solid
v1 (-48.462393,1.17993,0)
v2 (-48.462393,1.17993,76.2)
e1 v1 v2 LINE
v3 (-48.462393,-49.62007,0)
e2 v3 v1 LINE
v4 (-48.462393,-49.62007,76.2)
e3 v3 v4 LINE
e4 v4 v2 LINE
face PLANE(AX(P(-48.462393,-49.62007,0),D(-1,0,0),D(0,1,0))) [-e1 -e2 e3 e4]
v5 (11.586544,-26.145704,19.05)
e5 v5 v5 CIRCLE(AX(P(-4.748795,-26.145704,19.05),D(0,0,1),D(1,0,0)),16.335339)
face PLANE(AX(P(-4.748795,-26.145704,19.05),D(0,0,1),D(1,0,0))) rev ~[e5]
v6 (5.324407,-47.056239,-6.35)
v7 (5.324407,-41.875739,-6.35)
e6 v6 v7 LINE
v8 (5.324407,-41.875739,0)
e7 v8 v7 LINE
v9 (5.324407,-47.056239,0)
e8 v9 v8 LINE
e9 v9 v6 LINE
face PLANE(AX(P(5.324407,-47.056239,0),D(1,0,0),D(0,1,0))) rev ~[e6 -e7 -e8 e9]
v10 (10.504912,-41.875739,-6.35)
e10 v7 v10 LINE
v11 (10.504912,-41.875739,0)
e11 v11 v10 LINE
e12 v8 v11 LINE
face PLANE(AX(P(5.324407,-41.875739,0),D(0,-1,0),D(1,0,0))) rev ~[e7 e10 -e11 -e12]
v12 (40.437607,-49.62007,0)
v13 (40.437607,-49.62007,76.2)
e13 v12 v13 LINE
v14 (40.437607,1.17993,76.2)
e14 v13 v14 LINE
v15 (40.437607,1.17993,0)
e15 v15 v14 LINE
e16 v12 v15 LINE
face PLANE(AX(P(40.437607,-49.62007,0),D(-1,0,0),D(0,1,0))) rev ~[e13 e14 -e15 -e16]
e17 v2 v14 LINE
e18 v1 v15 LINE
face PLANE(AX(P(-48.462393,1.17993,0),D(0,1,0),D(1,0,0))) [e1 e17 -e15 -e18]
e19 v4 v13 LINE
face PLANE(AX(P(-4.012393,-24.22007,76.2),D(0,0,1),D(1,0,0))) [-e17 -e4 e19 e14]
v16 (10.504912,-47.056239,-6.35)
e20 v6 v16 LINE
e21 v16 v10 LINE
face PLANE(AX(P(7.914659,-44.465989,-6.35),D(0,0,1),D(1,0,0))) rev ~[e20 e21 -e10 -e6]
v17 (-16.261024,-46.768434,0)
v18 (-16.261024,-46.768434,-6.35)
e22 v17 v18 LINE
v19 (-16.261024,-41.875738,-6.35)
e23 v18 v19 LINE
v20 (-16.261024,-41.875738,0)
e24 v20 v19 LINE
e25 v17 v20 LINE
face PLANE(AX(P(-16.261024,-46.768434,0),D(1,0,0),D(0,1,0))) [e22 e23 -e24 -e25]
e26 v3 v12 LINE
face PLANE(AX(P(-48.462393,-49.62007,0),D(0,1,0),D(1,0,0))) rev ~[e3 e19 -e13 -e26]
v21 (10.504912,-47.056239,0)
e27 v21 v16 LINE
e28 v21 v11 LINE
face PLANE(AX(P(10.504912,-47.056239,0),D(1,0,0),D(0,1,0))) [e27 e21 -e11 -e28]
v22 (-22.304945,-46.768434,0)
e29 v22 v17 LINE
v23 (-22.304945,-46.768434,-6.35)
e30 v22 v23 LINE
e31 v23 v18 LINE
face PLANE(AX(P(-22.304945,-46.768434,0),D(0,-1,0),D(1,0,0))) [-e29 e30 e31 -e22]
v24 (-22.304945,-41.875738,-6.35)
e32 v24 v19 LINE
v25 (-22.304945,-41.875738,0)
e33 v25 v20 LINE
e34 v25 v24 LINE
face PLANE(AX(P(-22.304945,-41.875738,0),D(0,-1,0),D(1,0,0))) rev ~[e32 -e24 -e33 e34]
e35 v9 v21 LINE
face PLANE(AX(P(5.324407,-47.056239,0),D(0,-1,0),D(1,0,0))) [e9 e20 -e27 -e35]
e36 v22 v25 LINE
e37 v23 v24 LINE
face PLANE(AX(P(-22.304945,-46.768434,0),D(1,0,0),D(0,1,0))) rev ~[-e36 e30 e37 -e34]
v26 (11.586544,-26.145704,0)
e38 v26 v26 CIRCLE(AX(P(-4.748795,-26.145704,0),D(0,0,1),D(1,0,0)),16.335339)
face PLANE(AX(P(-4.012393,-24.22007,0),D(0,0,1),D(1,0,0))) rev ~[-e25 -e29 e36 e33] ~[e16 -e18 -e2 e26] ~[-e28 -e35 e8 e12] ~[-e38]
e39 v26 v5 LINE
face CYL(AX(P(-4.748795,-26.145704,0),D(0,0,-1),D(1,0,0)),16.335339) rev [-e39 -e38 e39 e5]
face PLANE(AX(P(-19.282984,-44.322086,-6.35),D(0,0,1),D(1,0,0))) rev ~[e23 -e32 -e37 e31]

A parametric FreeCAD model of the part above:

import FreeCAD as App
import Part
import Sketcher
Q = App.Units.Quantity

doc = App.newDocument("Part")
params = doc.addObject("Spreadsheet::Sheet", "Params")
for row, (alias, value) in enumerate([
    ("sketch1_height", "2 in"),
    ("sketch1_width", "3.5 in"),
    ("pad1_length", "3 in"),
    ("pocket1_length", "0.75 in"),
    ("pad2_length", "0.5 in"),
    ("pad3_length", "0.25 in"),
], start=1):
    params.set(f"A{row}", alias)
    params.set(f"B{row}", "=" + value)
    params.setAlias(f"B{row}", alias)

body = doc.addObject("PartDesign::Body", "Body")

# Sketch on XY plane
sketch1 = body.newObject("Sketcher::SketchObject", "Sketch")
sketch1.AttachmentSupport = (doc.getObject("XY_Plane"), [""])
sketch1.MapMode = "FlatFace"
sketch1.addGeometry(Part.LineSegment(App.Vector(-48, 1, 0), App.Vector(-48, -50, 0)), False)
sketch1.addGeometry(Part.LineSegment(App.Vector(-48, -50, 0), App.Vector(40, -50, 0)), False)
sketch1.addGeometry(Part.LineSegment(App.Vector(40, -50, 0), App.Vector(40, 1, 0)), False)
sketch1.addGeometry(Part.LineSegment(App.Vector(40, 1, 0), App.Vector(-48, 1, 0)), False)
sketch1.addConstraint(Sketcher.Constraint("Coincident", 0, 2, 1, 1))
sketch1.addConstraint(Sketcher.Constraint("Coincident", 1, 2, 2, 1))
sketch1.addConstraint(Sketcher.Constraint("Coincident", 2, 2, 3, 1))
sketch1.addConstraint(Sketcher.Constraint("Coincident", 3, 2, 0, 1))
sketch1.addConstraint(Sketcher.Constraint("Vertical", 0))
sketch1.addConstraint(Sketcher.Constraint("Horizontal", 1))
sketch1.addConstraint(Sketcher.Constraint("Vertical", 2))
sketch1.addConstraint(Sketcher.Constraint("Horizontal", 3))
sketch1.addConstraint(Sketcher.Constraint("DistanceY", 0, 2, 0, 1, Q("2 in")))
sketch1.addConstraint(Sketcher.Constraint("DistanceX", 1, 1, 1, 2, Q("3.5 in")))
sketch1.addConstraint(Sketcher.Constraint("DistanceY", 0, 2, -1, 1, 49.62007))
sketch1.addConstraint(Sketcher.Constraint("DistanceX", 0, 2, -1, 1, 48.462393))
sketch1.setExpression("Constraints[8]", "Params.sketch1_height")
sketch1.setExpression("Constraints[9]", "Params.sketch1_width")
pad1 = body.newObject("PartDesign::Pad", "Pad")
pad1.Profile = sketch1
pad1.setExpression("Length", "Params.pad1_length")

# Sketch on XY plane
sketch2 = body.newObject("Sketcher::SketchObject", "Sketch001")
sketch2.AttachmentSupport = (doc.getObject("XY_Plane"), [""])
sketch2.MapMode = "FlatFace"
sketch2.addGeometry(Part.Circle(App.Vector(-5, -26, 0), App.Vector(0, 0, 1), 16), False)
sketch2.addConstraint(Sketcher.Constraint("Diameter", 0, 32.670678))
sketch2.addConstraint(Sketcher.Constraint("DistanceX", 0, 3, -1, 1, 4.748795))
sketch2.addConstraint(Sketcher.Constraint("DistanceY", 0, 3, -1, 1, 26.145704))
pocket1 = body.newObject("PartDesign::Pocket", "Pocket")
pocket1.Profile = sketch2
pocket1.setExpression("Length", "Params.pocket1_length")
pocket1.Reversed = True

# Sketch on XY plane
sketch3 = body.newObject("Sketcher::SketchObject", "Sketch002")
sketch3.AttachmentSupport = (doc.getObject("XY_Plane"), [""])
sketch3.MapMode = "FlatFace"
sketch3.addGeometry(Part.LineSegment(App.Vector(-24.3, -41.9, 0), App.Vector(-24.3, -46.5, 0)), False)
sketch3.addGeometry(Part.LineSegment(App.Vector(-24.3, -46.5, 0), App.Vector(-19.4, -46.5, 0)), False)
sketch3.addGeometry(Part.LineSegment(App.Vector(-19.4, -46.5, 0), App.Vector(-19.4, -41.9, 0)), False)
sketch3.addGeometry(Part.LineSegment(App.Vector(-19.4, -41.9, 0), App.Vector(-24.3, -41.9, 0)), False)
sketch3.addGeometry(Part.LineSegment(App.Vector(7.6, -42.2, 0), App.Vector(7.6, -46.2, 0)), False)
sketch3.addGeometry(Part.LineSegment(App.Vector(7.6, -46.2, 0), App.Vector(11.9, -46.2, 0)), False)
sketch3.addGeometry(Part.LineSegment(App.Vector(11.9, -46.2, 0), App.Vector(11.9, -42.2, 0)), False)
sketch3.addGeometry(Part.LineSegment(App.Vector(11.9, -42.2, 0), App.Vector(7.6, -42.2, 0)), False)
sketch3.addConstraint(Sketcher.Constraint("Coincident", 0, 2, 1, 1))
sketch3.addConstraint(Sketcher.Constraint("Coincident", 1, 2, 2, 1))
sketch3.addConstraint(Sketcher.Constraint("Coincident", 2, 2, 3, 1))
sketch3.addConstraint(Sketcher.Constraint("Coincident", 3, 2, 0, 1))
sketch3.addConstraint(Sketcher.Constraint("Coincident", 4, 2, 5, 1))
sketch3.addConstraint(Sketcher.Constraint("Coincident", 5, 2, 6, 1))
sketch3.addConstraint(Sketcher.Constraint("Coincident", 6, 2, 7, 1))
sketch3.addConstraint(Sketcher.Constraint("Coincident", 7, 2, 4, 1))
sketch3.addConstraint(Sketcher.Constraint("Vertical", 0))
sketch3.addConstraint(Sketcher.Constraint("Horizontal", 1))
sketch3.addConstraint(Sketcher.Constraint("Vertical", 2))
sketch3.addConstraint(Sketcher.Constraint("Horizontal", 3))
sketch3.addConstraint(Sketcher.Constraint("Vertical", 4))
sketch3.addConstraint(Sketcher.Constraint("Horizontal", 5))
sketch3.addConstraint(Sketcher.Constraint("Vertical", 6))
sketch3.addConstraint(Sketcher.Constraint("Horizontal", 7))
sketch3.addConstraint(Sketcher.Constraint("DistanceX", 1, 1, 1, 2, 4.892699))
sketch3.addConstraint(Sketcher.Constraint("DistanceY", 0, 2, 0, 1, 4.604891))
sketch3.addConstraint(Sketcher.Constraint("DistanceX", 5, 1, 5, 2, 4.317085))
sketch3.addConstraint(Sketcher.Constraint("DistanceY", 4, 2, 4, 1, 4.029282))
sketch3.addConstraint(Sketcher.Constraint("DistanceY", 0, 2, -1, 1, 46.48063))
sketch3.addConstraint(Sketcher.Constraint("DistanceX", 1, 2, 4, 2, 27.05374))
sketch3.addConstraint(Sketcher.Constraint("DistanceX", 0, 2, -1, 1, 24.319586))
sketch3.addConstraint(Sketcher.Constraint("DistanceY", 4, 2, -1, 1, 46.192825))
pad2 = body.newObject("PartDesign::Pad", "Pad001")
pad2.Profile = sketch3
pad2.setExpression("Length", "Params.pad2_length")

# Sketch on XY plane
sketch4 = body.newObject("Sketcher::SketchObject", "Sketch003")
sketch4.AttachmentSupport = (doc.getObject("XY_Plane"), [""])
sketch4.MapMode = "FlatFace"
sketch4.addGeometry(Part.LineSegment(App.Vector(-22.3, -41.9, 0), App.Vector(-22.3, -46.8, 0)), False)
sketch4.addGeometry(Part.LineSegment(App.Vector(-22.3, -46.8, 0), App.Vector(-16.3, -46.8, 0)), False)
sketch4.addGeometry(Part.LineSegment(App.Vector(-16.3, -46.8, 0), App.Vector(-16.3, -41.9, 0)), False)
sketch4.addGeometry(Part.LineSegment(App.Vector(-16.3, -41.9, 0), App.Vector(-22.3, -41.9, 0)), False)
sketch4.addGeometry(Part.LineSegment(App.Vector(5.3, -41.9, 0), App.Vector(5.3, -47.1, 0)), False)
sketch4.addGeometry(Part.LineSegment(App.Vector(5.3, -47.1, 0), App.Vector(10.5, -47.1, 0)), False)
sketch4.addGeometry(Part.LineSegment(App.Vector(10.5, -47.1, 0), App.Vector(10.5, -41.9, 0)), False)
sketch4.addGeometry(Part.LineSegment(App.Vector(10.5, -41.9, 0), App.Vector(5.3, -41.9, 0)), False)
sketch4.addConstraint(Sketcher.Constraint("Coincident", 0, 2, 1, 1))
sketch4.addConstraint(Sketcher.Constraint("Coincident", 1, 2, 2, 1))
sketch4.addConstraint(Sketcher.Constraint("Coincident", 2, 2, 3, 1))
sketch4.addConstraint(Sketcher.Constraint("Coincident", 3, 2, 0, 1))
sketch4.addConstraint(Sketcher.Constraint("Coincident", 4, 2, 5, 1))
sketch4.addConstraint(Sketcher.Constraint("Coincident", 5, 2, 6, 1))
sketch4.addConstraint(Sketcher.Constraint("Coincident", 6, 2, 7, 1))
sketch4.addConstraint(Sketcher.Constraint("Coincident", 7, 2, 4, 1))
sketch4.addConstraint(Sketcher.Constraint("Vertical", 0))
sketch4.addConstraint(Sketcher.Constraint("Horizontal", 1))
sketch4.addConstraint(Sketcher.Constraint("Vertical", 2))
sketch4.addConstraint(Sketcher.Constraint("Horizontal", 3))
sketch4.addConstraint(Sketcher.Constraint("Vertical", 4))
sketch4.addConstraint(Sketcher.Constraint("Horizontal", 5))
sketch4.addConstraint(Sketcher.Constraint("Vertical", 6))
sketch4.addConstraint(Sketcher.Constraint("Horizontal", 7))
sketch4.addConstraint(Sketcher.Constraint("Horizontal", 3, 2, 6, 2))
sketch4.addConstraint(Sketcher.Constraint("DistanceY", 4, 2, 4, 1, 5.1805))
sketch4.addConstraint(Sketcher.Constraint("DistanceX", 1, 1, 1, 2, 6.043921))
sketch4.addConstraint(Sketcher.Constraint("DistanceX", 5, 1, 5, 2, 5.180505))
sketch4.addConstraint(Sketcher.Constraint("DistanceY", 0, 2, 0, 1, 4.892695))
sketch4.addConstraint(Sketcher.Constraint("DistanceY", 2, 2, -1, 1, 41.875738))
sketch4.addConstraint(Sketcher.Constraint("DistanceX", -1, 1, 5, 2, 10.504912))
sketch4.addConstraint(Sketcher.Constraint("DistanceX", 1, 2, 4, 2, 21.58543))
pad3 = body.newObject("PartDesign::Pad", "Pad002")
pad3.Profile = sketch4
pad3.setExpression("Length", "Params.pad3_length")
pad3.Reversed = True

doc.recompute()
